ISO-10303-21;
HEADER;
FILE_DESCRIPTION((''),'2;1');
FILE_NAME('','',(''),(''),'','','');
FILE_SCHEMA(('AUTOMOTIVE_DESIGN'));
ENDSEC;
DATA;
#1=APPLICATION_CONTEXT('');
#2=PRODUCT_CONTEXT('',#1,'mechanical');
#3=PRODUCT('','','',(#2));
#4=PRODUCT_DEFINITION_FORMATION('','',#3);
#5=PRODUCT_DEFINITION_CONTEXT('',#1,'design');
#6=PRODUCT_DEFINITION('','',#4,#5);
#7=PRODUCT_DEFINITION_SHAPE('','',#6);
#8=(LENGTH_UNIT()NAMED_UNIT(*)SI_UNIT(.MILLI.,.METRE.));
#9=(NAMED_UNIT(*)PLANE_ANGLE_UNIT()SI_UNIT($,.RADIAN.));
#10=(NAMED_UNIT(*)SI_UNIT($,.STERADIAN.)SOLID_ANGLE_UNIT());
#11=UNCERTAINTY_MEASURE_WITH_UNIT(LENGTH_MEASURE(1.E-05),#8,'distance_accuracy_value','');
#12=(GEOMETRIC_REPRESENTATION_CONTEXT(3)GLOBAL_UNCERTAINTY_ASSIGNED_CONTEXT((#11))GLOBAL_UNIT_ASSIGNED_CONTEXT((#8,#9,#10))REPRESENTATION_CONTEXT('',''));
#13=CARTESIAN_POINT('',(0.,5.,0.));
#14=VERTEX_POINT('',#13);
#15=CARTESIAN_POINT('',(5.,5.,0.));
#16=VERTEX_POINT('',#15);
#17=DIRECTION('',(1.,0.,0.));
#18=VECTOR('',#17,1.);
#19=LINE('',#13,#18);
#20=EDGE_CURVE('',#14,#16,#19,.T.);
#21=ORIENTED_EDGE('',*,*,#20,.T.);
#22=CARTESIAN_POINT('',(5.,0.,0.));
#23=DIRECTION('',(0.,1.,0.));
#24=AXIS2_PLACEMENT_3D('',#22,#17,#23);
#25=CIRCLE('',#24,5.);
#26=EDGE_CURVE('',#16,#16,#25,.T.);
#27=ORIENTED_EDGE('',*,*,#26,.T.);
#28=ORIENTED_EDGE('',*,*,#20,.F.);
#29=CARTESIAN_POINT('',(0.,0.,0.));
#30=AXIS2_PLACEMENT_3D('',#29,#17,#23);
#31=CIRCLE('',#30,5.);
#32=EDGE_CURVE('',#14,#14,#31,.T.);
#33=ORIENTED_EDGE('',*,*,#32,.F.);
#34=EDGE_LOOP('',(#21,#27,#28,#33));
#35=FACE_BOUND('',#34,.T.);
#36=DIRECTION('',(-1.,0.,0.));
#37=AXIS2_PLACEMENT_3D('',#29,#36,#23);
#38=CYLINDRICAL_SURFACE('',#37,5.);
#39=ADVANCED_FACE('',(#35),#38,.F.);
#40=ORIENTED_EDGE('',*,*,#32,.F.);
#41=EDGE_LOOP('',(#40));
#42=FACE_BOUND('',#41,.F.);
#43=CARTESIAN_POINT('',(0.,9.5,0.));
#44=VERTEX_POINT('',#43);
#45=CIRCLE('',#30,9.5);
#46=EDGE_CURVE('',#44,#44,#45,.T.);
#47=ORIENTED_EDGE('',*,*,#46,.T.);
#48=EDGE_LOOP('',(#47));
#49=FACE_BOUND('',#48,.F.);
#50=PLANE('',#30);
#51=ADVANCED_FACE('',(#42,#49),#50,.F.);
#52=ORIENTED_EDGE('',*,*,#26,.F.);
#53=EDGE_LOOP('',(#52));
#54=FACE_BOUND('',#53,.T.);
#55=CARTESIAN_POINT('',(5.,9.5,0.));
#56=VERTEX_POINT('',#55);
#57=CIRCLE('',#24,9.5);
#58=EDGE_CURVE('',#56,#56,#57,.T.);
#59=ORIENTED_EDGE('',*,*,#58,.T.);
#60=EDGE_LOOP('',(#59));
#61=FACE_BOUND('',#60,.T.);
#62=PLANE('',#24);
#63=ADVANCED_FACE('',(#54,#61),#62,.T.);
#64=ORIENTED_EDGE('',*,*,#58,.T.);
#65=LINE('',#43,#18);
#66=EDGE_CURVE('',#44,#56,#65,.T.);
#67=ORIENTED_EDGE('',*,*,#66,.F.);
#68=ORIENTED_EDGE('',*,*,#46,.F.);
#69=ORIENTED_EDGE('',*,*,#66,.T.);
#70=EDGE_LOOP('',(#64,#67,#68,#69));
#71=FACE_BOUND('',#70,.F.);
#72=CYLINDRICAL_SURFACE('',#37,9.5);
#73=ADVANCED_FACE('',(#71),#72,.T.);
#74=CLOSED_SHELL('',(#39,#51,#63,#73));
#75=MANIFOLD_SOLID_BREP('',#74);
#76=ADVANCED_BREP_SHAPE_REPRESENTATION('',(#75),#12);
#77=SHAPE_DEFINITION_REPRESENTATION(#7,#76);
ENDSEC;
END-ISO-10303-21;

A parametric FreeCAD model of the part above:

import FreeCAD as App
import Part
import Sketcher

doc = App.newDocument("Part")
params = doc.addObject("Spreadsheet::Sheet", "Params")
for row, (alias, value) in enumerate([
    ("sketch1_diameter", "19 mm"),
    ("sketch1_diameter2", "10 mm"),
    ("pad1_length", "5 mm"),
], start=1):
    params.set(f"A{row}", alias)
    params.set(f"B{row}", "=" + value)
    params.setAlias(f"B{row}", alias)

body = doc.addObject("PartDesign::Body", "Body")

sketch1 = doc.addObject("Sketcher::SketchObject", "Sketch")
body.addObject(sketch1)
sketch1.AttachmentSupport = (doc.YZ_Plane, [""])
sketch1.MapMode = "FlatFace"
sketch1.addGeometry([
    Part.Circle(App.Vector(0, 0, 0), App.Vector(0, 0, 1), 10),
    Part.Circle(App.Vector(0, 0, 0), App.Vector(0, 0, 1), 5),
], False)
sketch1.addConstraint([
    Sketcher.Constraint("Coincident", 0, 3, -1, 1),
    Sketcher.Constraint("Coincident", 1, 3, -1, 1),
    Sketcher.Constraint("Diameter", 0, 19.0),
    Sketcher.Constraint("Diameter", 1, 10.0),
])
sketch1.setExpression("Constraints[2]", "Params.sketch1_diameter")
sketch1.setExpression("Constraints[3]", "Params.sketch1_diameter2")
pad1 = doc.addObject("PartDesign::Pad", "Pad")
body.addObject(pad1)
pad1.Profile = sketch1
pad1.setExpression("Length", "Params.pad1_length")

doc.recompute()
